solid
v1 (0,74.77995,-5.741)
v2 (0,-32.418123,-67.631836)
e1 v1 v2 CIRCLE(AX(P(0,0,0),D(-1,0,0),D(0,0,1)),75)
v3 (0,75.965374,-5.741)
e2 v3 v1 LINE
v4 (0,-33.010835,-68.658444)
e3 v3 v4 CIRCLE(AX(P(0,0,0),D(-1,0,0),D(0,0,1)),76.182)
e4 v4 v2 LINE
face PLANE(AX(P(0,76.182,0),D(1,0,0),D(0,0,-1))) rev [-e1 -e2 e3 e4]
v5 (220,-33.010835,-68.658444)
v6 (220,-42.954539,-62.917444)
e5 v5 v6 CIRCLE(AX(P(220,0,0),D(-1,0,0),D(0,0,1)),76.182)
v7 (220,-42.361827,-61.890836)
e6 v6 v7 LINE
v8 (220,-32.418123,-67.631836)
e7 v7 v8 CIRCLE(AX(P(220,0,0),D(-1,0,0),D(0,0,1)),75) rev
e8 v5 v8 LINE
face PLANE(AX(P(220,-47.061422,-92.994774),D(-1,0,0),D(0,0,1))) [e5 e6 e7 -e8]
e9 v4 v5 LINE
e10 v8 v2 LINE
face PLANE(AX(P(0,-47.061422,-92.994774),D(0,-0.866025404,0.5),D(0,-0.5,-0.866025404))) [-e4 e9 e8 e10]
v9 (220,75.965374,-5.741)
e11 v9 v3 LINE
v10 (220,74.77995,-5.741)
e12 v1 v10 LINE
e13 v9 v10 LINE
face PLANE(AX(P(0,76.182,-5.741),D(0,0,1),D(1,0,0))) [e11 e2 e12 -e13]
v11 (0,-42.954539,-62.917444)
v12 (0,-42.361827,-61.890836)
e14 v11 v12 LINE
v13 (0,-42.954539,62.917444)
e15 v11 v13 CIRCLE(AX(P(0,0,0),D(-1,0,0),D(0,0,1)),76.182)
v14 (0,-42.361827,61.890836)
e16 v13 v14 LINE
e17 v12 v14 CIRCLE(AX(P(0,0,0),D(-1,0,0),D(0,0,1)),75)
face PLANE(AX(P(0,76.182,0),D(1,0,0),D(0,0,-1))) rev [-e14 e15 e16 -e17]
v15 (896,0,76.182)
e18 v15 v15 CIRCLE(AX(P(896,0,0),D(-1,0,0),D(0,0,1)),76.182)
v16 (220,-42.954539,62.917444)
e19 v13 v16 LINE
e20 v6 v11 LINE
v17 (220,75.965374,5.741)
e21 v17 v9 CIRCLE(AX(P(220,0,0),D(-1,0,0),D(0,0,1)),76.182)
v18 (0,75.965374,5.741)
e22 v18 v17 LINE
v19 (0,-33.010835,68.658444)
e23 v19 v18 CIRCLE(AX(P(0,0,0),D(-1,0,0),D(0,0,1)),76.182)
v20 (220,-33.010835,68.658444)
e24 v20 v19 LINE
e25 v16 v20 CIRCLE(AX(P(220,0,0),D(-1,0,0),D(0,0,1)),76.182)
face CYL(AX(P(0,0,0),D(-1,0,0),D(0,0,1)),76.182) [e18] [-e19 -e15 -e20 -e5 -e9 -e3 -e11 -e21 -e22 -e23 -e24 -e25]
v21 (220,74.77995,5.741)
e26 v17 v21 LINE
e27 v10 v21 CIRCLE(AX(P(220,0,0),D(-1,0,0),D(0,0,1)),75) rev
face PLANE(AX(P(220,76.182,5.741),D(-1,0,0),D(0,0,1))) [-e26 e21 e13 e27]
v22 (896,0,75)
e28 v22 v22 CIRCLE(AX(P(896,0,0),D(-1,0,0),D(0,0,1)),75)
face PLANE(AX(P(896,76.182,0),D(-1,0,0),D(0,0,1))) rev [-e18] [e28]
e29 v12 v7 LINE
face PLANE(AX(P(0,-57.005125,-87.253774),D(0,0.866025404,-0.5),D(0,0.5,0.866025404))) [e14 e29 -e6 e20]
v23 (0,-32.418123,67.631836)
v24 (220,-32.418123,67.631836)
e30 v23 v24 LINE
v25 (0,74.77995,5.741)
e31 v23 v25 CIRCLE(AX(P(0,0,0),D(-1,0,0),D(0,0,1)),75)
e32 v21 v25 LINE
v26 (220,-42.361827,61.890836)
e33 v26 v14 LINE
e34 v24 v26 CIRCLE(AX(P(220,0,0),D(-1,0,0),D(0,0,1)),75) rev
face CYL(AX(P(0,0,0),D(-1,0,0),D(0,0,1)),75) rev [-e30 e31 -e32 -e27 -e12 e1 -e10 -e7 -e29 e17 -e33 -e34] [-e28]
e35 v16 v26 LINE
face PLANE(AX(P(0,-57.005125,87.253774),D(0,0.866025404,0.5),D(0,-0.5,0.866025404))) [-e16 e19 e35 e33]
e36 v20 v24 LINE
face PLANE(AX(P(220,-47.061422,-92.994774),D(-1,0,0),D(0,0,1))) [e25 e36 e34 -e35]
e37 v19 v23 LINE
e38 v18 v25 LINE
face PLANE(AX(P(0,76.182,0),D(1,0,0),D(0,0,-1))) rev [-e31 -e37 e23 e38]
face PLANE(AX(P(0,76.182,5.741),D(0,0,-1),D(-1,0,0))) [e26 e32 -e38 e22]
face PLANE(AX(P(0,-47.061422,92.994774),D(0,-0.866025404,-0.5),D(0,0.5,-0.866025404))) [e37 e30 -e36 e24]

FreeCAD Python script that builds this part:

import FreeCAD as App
import Part
import Sketcher
from FreeCAD import Vector


def add_polygon(sketch, points):
    """Adds a closed chain of lines whose ends are joined by coincident constraints."""
    first, n = sketch.GeometryCount, len(points)
    for a, b in zip(points, points[1:] + points[:1]):
        sketch.addGeometry(Part.LineSegment(App.Vector(*a, 0), App.Vector(*b, 0)), False)
    for i in range(n):
        sketch.addConstraint(Sketcher.Constraint("Coincident", first + i, 2, first + (i + 1) % n, 1))

doc = App.newDocument("Part")
body = doc.addObject("PartDesign::Body", "Body")

# Sketch on XY plane
sketch1 = body.newObject("Sketcher::SketchObject", "Sketch")
sketch1.AttachmentSupport = (doc.getObject("XY_Plane"), [""])
sketch1.MapMode = "FlatFace"
add_polygon(sketch1, [(0, 76.2), (0, 75), (896, 75), (896, 76.2)])  # lines 0-3
sketch1.addConstraint(Sketcher.Constraint("Vertical", 0))
sketch1.addConstraint(Sketcher.Constraint("Horizontal", 1))
sketch1.addConstraint(Sketcher.Constraint("Vertical", 2))
sketch1.addConstraint(Sketcher.Constraint("Horizontal", 3))
sketch1.addConstraint(Sketcher.Constraint("PointOnObject", 0, 2, -2))
sketch1.addConstraint(Sketcher.Constraint("DistanceX", 1, 1, 1, 2, 896.0))
sketch1.addConstraint(Sketcher.Constraint("DistanceY", -1, 1, 0, 2, 75.0))
sketch1.addConstraint(Sketcher.Constraint("DistanceY", 0, 2, 0, 1, 1.182))
revolution = body.newObject("PartDesign::Revolution", "Revolution")
revolution.Profile = sketch1
revolution.ReferenceAxis = (sketch1, ["H_Axis"])
revolution.Angle = 360

# Sketch on XZ plane
sketch2 = body.newObject("Sketcher::SketchObject", "Sketch001")
sketch2.AttachmentSupport = (doc.getObject("XZ_Plane"), [""])
sketch2.MapMode = "FlatFace"
add_polygon(sketch2, [(0, -6), (0, 6), (220, 6), (220, -6)])  # lines 0-3
sketch2.addConstraint(Sketcher.Constraint("Vertical", 0))
sketch2.addConstraint(Sketcher.Constraint("Horizontal", 1))
sketch2.addConstraint(Sketcher.Constraint("Vertical", 2))
sketch2.addConstraint(Sketcher.Constraint("Horizontal", 3))
sketch2.addConstraint(Sketcher.Constraint("Symmetric", 0, 2, 3, 2, -1, 1))
sketch2.addConstraint(Sketcher.Constraint("DistanceX", 1, 1, 1, 2, 220.0))
sketch2.addConstraint(Sketcher.Constraint("DistanceY", 0, 1, 0, 2, 11.482))
pocket1 = body.newObject("PartDesign::Pocket", "Pocket")
pocket1.Profile = sketch2
pocket1.Type = "ThroughAll"
doc.recompute()

polarpattern = body.newObject("PartDesign::PolarPattern", "PolarPattern")
polarpattern.Originals = [pocket1]
polarpattern.Axis = (doc.getObject("X_Axis"), [""])
polarpattern.Angle = 360
polarpattern.Occurrences = 3
body.Tip = polarpattern

doc.recompute()
